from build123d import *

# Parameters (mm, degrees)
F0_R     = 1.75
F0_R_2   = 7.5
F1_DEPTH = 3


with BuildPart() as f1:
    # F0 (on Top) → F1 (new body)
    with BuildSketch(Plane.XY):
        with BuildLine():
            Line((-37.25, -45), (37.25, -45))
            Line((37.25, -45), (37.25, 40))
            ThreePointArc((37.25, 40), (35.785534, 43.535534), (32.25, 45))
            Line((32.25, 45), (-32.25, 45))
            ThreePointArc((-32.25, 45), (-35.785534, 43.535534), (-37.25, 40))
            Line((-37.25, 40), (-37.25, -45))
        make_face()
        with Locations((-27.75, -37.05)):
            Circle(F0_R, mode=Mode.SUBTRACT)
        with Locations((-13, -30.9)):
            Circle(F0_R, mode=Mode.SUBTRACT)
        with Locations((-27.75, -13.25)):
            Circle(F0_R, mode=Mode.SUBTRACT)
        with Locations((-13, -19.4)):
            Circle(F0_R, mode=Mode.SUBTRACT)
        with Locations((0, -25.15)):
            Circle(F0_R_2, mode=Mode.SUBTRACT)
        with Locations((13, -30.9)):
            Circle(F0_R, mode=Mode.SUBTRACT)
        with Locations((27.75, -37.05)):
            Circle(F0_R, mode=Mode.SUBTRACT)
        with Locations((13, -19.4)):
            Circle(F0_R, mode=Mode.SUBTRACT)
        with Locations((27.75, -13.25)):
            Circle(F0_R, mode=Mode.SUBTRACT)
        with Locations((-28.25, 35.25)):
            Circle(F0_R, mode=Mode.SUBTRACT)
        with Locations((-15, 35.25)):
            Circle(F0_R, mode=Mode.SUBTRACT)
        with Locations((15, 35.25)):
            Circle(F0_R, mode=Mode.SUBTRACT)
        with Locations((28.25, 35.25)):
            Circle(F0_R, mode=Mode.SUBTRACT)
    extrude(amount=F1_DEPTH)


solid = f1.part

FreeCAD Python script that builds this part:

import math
import FreeCAD as App
import Part
import Sketcher
from FreeCAD import Vector
Q = App.Units.Quantity

doc = App.newDocument("Part")
body = doc.addObject("PartDesign::Body", "Body")

sketch1 = body.newObject("Sketcher::SketchObject", "Sketch")
sketch1.AttachmentSupport = (doc.getObject("XY_Plane"), [""])
sketch1.MapMode = "FlatFace"
sketch1.addGeometry([
    Part.LineSegment(Vector(-37.2, -45, 0), Vector(37.2, -45, 0)),
    Part.LineSegment(Vector(37.2, -45, 0), Vector(37.2, 40, 0)),
    Part.ArcOfCircle(Part.Circle(Vector(32.3, 40, 0), Vector(0, 0, 1), 5), math.radians(0), math.radians(90)),
    Part.LineSegment(Vector(32.2, 45, 0), Vector(-32.2, 45, 0)),
    Part.ArcOfCircle(Part.Circle(Vector(-32.3, 40, 0), Vector(0, 0, 1), 5), math.radians(90), math.radians(180)),
    Part.LineSegment(Vector(-37.2, 40, 0), Vector(-37.2, -45, 0)),
    Part.Circle(Vector(-27.8, -37, 0), Vector(0, 0, 1), 1.8),
    Part.Circle(Vector(-13, -30.9, 0), Vector(0, 0, 1), 1.8),
    Part.Circle(Vector(-27.8, -13.2, 0), Vector(0, 0, 1), 1.8),
    Part.Circle(Vector(-13, -19.4, 0), Vector(0, 0, 1), 1.8),
    Part.Circle(Vector(13, -30.9, 0), Vector(0, 0, 1), 1.8),
    Part.Circle(Vector(0, -25.1, 0), Vector(0, 0, 1), 7.5),
    Part.Circle(Vector(27.8, -37, 0), Vector(0, 0, 1), 1.8),
    Part.Circle(Vector(13, -19.4, 0), Vector(0, 0, 1), 1.8),
    Part.Circle(Vector(27.8, -13.2, 0), Vector(0, 0, 1), 1.8),
    Part.Circle(Vector(-28.2, 35.2, 0), Vector(0, 0, 1), 1.8),
    Part.Circle(Vector(-15, 35.2, 0), Vector(0, 0, 1), 1.8),
    Part.Circle(Vector(15, 35.2, 0), Vector(0, 0, 1), 1.8),
    Part.Circle(Vector(28.2, 35.2, 0), Vector(0, 0, 1), 1.8),
], False)
sketch1.addConstraint([
    Sketcher.Constraint("Coincident", 0, 2, 1, 1),
    Sketcher.Constraint("Tangent", 1, 2, 2, 1),
    Sketcher.Constraint("Tangent", 2, 2, 3, 1),
    Sketcher.Constraint("Tangent", 3, 2, 4, 1),
    Sketcher.Constraint("Tangent", 4, 2, 5, 1),
    Sketcher.Constraint("Coincident", 5, 2, 0, 1),
    Sketcher.Constraint("Horizontal", 0),
    Sketcher.Constraint("Vertical", 1),
    Sketcher.Constraint("Horizontal", 3),
    Sketcher.Constraint("Vertical", 5),
    Sketcher.Constraint("Equal", 2, 4),
    Sketcher.Constraint("Equal", 6, 7),
    Sketcher.Constraint("Equal", 7, 8),
    Sketcher.Constraint("Equal", 8, 9),
    Sketcher.Constraint("Equal", 9, 10),
    Sketcher.Constraint("Equal", 10, 12),
    Sketcher.Constraint("Equal", 12, 13),
    Sketcher.Constraint("Equal", 13, 14),
    Sketcher.Constraint("Equal", 14, 15),
    Sketcher.Constraint("Equal", 15, 16),
    Sketcher.Constraint("Equal", 16, 17),
    Sketcher.Constraint("Equal", 17, 18),
    Sketcher.Constraint("Symmetric", 7, 3, 10, 3, -2),
    Sketcher.Constraint("Symmetric", 6, 3, 12, 3, -2),
    Sketcher.Constraint("Symmetric", 9, 3, 13, 3, -2),
    Sketcher.Constraint("Symmetric", 8, 3, 14, 3, -2),
    Sketcher.Constraint("Symmetric", 16, 3, 17, 3, -2),
    Sketcher.Constraint("Symmetric", 15, 3, 18, 3, -2),
    Sketcher.Constraint("PointOnObject", 11, 3, -2),
    Sketcher.Constraint("Horizontal", 15, 3, 16, 3),
    Sketcher.Constraint("Vertical", 6, 3, 8, 3),
    Sketcher.Constraint("Vertical", 7, 3, 9, 3),
    Sketcher.Constraint("Diameter", 11, Q("15 mm")),
    Sketcher.Constraint("Radius", 2, Q("5 mm")),
    Sketcher.Constraint("Diameter", 6, Q("3.5 mm")),
    Sketcher.Constraint("DistanceY", 1, 1, 1, 2, Q("85 mm")),
    Sketcher.Constraint("DistanceX", 0, 1, 0, 2, Q("74.5 mm")),
    Sketcher.Constraint("DistanceY", -1, 1, 2, 3, Q("40 mm")),
    Sketcher.Constraint("DistanceX", 7, 3, -1, 1, Q("13 mm")),
    Sketcher.Constraint("DistanceX", 16, 3, -1, 1, Q("15 mm")),
    Sketcher.Constraint("DistanceX", 6, 3, 2, 3, Q("60 mm")),
    Sketcher.Constraint("DistanceX", 4, 3, 15, 3, Q("4 mm")),
    Sketcher.Constraint("DistanceX", 18, 3, 2, 3, Q("4 mm")),
    Sketcher.Constraint("DistanceY", 7, 3, -1, 1, Q("30.9 mm")),
    Sketcher.Constraint("DistanceY", 9, 3, -1, 1, Q("19.4 mm")),
    Sketcher.Constraint("DistanceY", 6, 3, 8, 3, Q("23.8 mm")),
    Sketcher.Constraint("DistanceY", 6, 3, 11, 3, Q("11.9 mm")),
    Sketcher.Constraint("DistanceY", 8, 3, 15, 3, Q("48.5 mm")),
    Sketcher.Constraint("DistanceY", 6, 3, -1, 1, Q("37.05 mm")),
])
pad1 = body.newObject("PartDesign::Pad", "Pad")
pad1.Profile = sketch1
pad1.Length = 3

doc.recompute()
